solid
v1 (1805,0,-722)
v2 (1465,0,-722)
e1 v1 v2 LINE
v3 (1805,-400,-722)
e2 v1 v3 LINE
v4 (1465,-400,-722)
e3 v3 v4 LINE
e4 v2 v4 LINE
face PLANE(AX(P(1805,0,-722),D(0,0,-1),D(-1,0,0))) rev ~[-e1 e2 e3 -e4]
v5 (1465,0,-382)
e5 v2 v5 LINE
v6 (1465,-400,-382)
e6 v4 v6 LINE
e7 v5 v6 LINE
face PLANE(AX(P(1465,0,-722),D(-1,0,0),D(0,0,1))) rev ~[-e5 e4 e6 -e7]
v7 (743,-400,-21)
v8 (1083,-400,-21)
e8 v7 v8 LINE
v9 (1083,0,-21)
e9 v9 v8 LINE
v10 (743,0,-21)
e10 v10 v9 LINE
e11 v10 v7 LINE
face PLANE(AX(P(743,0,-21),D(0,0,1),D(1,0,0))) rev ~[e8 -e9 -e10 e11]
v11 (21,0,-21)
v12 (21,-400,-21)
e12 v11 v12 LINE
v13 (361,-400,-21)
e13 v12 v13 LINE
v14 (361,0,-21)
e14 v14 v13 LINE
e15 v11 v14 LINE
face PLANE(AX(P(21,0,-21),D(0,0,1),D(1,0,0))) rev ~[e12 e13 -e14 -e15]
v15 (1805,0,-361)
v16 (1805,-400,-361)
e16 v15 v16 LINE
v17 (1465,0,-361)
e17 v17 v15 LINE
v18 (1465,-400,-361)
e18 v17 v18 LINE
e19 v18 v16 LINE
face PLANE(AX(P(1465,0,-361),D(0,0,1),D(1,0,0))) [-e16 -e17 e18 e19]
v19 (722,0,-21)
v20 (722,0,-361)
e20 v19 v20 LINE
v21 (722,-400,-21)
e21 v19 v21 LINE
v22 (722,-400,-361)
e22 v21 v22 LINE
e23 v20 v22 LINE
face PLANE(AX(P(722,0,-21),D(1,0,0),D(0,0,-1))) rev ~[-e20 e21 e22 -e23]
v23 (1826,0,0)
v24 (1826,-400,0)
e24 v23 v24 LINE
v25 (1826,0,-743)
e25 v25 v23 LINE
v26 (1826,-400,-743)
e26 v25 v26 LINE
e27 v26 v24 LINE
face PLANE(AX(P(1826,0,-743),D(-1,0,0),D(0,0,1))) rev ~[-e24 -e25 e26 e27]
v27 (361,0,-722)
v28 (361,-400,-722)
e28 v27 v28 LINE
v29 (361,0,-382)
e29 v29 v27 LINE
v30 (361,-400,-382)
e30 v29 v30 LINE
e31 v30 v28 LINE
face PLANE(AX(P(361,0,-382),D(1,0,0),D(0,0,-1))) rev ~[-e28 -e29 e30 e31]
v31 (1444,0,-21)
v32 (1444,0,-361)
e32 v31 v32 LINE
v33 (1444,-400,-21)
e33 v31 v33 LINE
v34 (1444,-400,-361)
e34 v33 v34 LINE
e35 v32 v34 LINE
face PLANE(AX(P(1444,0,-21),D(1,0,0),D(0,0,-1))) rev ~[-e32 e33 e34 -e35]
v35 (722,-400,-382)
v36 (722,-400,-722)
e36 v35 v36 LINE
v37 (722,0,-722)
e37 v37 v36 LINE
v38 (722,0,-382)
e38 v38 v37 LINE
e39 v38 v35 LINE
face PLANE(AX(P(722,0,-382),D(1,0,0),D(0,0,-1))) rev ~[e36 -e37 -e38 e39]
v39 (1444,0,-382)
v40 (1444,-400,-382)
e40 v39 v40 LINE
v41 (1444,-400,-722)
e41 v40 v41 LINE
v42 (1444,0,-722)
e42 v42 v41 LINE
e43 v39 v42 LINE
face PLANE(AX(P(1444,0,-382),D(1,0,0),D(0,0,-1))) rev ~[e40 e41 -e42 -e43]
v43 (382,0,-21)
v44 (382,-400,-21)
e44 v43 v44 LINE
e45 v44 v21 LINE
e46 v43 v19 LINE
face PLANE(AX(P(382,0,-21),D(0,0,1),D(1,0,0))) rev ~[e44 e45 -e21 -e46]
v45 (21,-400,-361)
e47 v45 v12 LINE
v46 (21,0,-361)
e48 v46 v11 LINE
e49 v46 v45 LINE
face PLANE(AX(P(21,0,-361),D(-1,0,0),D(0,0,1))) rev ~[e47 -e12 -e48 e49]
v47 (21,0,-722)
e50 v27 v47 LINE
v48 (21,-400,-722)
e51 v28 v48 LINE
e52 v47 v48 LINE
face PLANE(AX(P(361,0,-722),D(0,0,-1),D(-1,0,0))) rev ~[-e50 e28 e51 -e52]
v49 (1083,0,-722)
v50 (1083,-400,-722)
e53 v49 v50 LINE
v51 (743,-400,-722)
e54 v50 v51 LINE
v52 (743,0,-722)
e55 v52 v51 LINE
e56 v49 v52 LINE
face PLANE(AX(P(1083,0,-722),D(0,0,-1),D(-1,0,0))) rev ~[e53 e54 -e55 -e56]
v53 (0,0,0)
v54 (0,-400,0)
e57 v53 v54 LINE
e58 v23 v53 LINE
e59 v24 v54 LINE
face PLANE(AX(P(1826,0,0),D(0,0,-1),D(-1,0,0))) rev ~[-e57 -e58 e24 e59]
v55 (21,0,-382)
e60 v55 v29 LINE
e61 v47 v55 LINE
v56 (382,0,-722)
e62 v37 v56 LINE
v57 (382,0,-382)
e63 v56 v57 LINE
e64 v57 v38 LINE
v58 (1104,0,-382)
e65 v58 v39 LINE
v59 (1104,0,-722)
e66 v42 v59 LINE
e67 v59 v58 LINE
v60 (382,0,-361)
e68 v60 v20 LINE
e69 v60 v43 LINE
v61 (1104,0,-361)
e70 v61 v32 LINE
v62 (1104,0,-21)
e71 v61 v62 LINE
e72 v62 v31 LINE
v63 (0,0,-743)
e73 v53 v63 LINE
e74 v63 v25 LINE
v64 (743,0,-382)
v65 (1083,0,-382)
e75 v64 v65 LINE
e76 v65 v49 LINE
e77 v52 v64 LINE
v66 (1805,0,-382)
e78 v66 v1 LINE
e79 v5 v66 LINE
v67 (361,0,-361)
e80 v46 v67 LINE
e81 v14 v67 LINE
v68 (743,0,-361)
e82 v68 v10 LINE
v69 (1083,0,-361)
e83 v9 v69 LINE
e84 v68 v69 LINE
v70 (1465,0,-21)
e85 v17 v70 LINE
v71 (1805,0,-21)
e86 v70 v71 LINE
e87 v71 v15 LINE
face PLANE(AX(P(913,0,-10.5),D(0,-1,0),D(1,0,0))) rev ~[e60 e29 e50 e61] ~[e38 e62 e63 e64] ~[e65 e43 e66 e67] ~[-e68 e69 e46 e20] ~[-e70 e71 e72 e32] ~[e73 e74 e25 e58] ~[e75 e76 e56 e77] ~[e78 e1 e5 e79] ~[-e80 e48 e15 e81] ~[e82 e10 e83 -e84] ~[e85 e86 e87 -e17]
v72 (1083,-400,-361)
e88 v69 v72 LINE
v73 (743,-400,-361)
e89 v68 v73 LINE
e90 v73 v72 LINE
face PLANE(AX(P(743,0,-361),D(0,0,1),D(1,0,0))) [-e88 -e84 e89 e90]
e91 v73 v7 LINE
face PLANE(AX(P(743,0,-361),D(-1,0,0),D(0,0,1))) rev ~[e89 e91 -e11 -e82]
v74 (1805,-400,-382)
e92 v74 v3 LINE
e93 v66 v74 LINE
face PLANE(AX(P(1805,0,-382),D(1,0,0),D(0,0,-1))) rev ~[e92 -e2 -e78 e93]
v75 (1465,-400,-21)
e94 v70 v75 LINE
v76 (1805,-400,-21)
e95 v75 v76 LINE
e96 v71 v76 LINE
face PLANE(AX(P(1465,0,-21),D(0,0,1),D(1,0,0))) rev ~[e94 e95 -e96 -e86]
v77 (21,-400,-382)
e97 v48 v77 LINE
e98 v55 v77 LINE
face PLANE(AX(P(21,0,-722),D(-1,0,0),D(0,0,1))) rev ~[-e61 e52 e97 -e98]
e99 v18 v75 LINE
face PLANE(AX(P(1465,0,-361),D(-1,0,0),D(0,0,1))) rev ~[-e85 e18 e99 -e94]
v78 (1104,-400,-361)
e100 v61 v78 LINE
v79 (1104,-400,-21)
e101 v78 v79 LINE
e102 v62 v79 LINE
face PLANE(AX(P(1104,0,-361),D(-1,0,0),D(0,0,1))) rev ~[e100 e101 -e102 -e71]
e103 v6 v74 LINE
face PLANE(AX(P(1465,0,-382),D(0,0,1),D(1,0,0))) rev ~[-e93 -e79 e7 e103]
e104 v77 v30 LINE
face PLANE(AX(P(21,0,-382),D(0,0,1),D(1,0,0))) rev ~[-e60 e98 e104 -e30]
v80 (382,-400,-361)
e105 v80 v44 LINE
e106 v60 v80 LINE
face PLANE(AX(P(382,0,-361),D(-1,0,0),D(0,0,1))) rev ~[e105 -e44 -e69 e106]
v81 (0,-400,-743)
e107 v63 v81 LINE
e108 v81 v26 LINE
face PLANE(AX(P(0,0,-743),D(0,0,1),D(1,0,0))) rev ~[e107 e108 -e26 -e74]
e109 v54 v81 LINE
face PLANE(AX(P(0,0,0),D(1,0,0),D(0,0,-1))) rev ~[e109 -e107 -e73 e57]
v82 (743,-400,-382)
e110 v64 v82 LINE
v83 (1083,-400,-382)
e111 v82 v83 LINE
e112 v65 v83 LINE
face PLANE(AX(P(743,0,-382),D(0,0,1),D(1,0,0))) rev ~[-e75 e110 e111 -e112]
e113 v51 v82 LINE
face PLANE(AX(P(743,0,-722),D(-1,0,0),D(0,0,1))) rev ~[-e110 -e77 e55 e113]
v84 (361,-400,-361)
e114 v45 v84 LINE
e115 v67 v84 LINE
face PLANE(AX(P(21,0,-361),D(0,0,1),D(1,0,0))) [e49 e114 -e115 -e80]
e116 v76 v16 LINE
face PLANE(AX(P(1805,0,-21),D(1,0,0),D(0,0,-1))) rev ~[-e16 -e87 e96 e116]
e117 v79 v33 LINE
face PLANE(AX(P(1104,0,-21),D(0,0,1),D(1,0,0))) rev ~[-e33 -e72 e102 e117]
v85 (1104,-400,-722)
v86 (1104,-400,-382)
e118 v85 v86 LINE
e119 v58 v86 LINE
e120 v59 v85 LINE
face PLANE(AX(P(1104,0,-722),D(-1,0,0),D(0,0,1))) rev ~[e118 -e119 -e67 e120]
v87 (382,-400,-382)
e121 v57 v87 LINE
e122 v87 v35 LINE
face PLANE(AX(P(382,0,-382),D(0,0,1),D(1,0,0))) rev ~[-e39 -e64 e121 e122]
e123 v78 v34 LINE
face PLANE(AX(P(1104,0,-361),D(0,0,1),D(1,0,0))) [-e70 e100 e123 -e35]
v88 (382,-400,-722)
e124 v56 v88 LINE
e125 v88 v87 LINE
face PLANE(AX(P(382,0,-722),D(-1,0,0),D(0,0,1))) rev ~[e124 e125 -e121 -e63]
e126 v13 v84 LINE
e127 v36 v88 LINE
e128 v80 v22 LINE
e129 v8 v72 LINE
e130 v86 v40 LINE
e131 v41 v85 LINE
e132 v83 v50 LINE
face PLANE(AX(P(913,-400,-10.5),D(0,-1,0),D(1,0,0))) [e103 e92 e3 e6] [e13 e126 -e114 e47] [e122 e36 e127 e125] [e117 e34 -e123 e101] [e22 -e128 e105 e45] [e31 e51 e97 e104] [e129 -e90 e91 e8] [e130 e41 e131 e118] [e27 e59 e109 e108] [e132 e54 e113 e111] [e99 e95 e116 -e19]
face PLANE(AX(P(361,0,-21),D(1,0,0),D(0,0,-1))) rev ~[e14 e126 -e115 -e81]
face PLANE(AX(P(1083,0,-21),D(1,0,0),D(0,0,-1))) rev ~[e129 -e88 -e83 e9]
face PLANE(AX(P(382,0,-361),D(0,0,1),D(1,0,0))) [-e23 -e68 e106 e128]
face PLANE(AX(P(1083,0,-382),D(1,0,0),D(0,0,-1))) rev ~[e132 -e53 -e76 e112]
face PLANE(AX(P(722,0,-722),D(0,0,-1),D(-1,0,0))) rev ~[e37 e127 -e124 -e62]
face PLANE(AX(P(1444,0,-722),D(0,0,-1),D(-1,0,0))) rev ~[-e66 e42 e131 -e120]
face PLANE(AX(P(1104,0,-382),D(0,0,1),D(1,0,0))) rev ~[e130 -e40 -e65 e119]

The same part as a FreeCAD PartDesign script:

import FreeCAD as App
import Part
import Sketcher

doc = App.newDocument("Part")
body = doc.addObject("PartDesign::Body", "Body")

# Sketch on XZ plane
sketch1 = body.newObject("Sketcher::SketchObject", "Sketch")
sketch1.AttachmentSupport = (doc.getObject("XZ_Plane"), [""])
sketch1.MapMode = "FlatFace"
sketch1.addGeometry([
    Part.LineSegment(App.Vector(1826, 0, 0), App.Vector(0, 0, 0)),  # 0
    Part.LineSegment(App.Vector(0, 0, 0), App.Vector(0, -743, 0)),  # 1
    Part.LineSegment(App.Vector(0, -743, 0), App.Vector(1826, -743, 0)),  # 2
    Part.LineSegment(App.Vector(1826, -743, 0), App.Vector(1826, 0, 0)),  # 3
    Part.LineSegment(App.Vector(1805, -722, 0), App.Vector(1465, -722, 0)),  # 4
    Part.LineSegment(App.Vector(1465, -722, 0), App.Vector(1465, -382, 0)),  # 5
    Part.LineSegment(App.Vector(1465, -382, 0), App.Vector(1805, -382, 0)),  # 6
    Part.LineSegment(App.Vector(1805, -382, 0), App.Vector(1805, -722, 0)),  # 7
    Part.LineSegment(App.Vector(1465, -361, 0), App.Vector(1465, -21, 0)),  # 8
    Part.LineSegment(App.Vector(1465, -21, 0), App.Vector(1805, -21, 0)),  # 9
    Part.LineSegment(App.Vector(1805, -21, 0), App.Vector(1805, -361, 0)),  # 10
    Part.LineSegment(App.Vector(1805, -361, 0), App.Vector(1465, -361, 0)),  # 11
    Part.LineSegment(App.Vector(21, -21, 0), App.Vector(361, -21, 0)),  # 12
    Part.LineSegment(App.Vector(361, -21, 0), App.Vector(361, -361, 0)),  # 13
    Part.LineSegment(App.Vector(361, -361, 0), App.Vector(21, -361, 0)),  # 14
    Part.LineSegment(App.Vector(21, -361, 0), App.Vector(21, -21, 0)),  # 15
    Part.LineSegment(App.Vector(361, -382, 0), App.Vector(361, -722, 0)),  # 16
    Part.LineSegment(App.Vector(361, -722, 0), App.Vector(21, -722, 0)),  # 17
    Part.LineSegment(App.Vector(21, -722, 0), App.Vector(21, -382, 0)),  # 18
    Part.LineSegment(App.Vector(21, -382, 0), App.Vector(361, -382, 0)),  # 19
    Part.LineSegment(App.Vector(382, -21, 0), App.Vector(722, -21, 0)),  # 20
    Part.LineSegment(App.Vector(722, -21, 0), App.Vector(722, -361, 0)),  # 21
    Part.LineSegment(App.Vector(722, -361, 0), App.Vector(382, -361, 0)),  # 22
    Part.LineSegment(App.Vector(382, -361, 0), App.Vector(382, -21, 0)),  # 23
    Part.LineSegment(App.Vector(722, -382, 0), App.Vector(722, -722, 0)),  # 24
    Part.LineSegment(App.Vector(722, -722, 0), App.Vector(382, -722, 0)),  # 25
    Part.LineSegment(App.Vector(382, -722, 0), App.Vector(382, -382, 0)),  # 26
    Part.LineSegment(App.Vector(382, -382, 0), App.Vector(722, -382, 0)),  # 27
    Part.LineSegment(App.Vector(743, -21, 0), App.Vector(1083, -21, 0)),  # 28
    Part.LineSegment(App.Vector(1083, -21, 0), App.Vector(1083, -361, 0)),  # 29
    Part.LineSegment(App.Vector(1083, -361, 0), App.Vector(743, -361, 0)),  # 30
    Part.LineSegment(App.Vector(743, -361, 0), App.Vector(743, -21, 0)),  # 31
    Part.LineSegment(App.Vector(1083, -382, 0), App.Vector(1083, -722, 0)),  # 32
    Part.LineSegment(App.Vector(1083, -722, 0), App.Vector(743, -722, 0)),  # 33
    Part.LineSegment(App.Vector(743, -722, 0), App.Vector(743, -382, 0)),  # 34
    Part.LineSegment(App.Vector(743, -382, 0), App.Vector(1083, -382, 0)),  # 35
    Part.LineSegment(App.Vector(1104, -722, 0), App.Vector(1104, -382, 0)),  # 36
    Part.LineSegment(App.Vector(1104, -382, 0), App.Vector(1444, -382, 0)),  # 37
    Part.LineSegment(App.Vector(1444, -382, 0), App.Vector(1444, -722, 0)),  # 38
    Part.LineSegment(App.Vector(1444, -722, 0), App.Vector(1104, -722, 0)),  # 39
    Part.LineSegment(App.Vector(1104, -361, 0), App.Vector(1104, -21, 0)),  # 40
    Part.LineSegment(App.Vector(1104, -21, 0), App.Vector(1444, -21, 0)),  # 41
    Part.LineSegment(App.Vector(1444, -21, 0), App.Vector(1444, -361, 0)),  # 42
    Part.LineSegment(App.Vector(1444, -361, 0), App.Vector(1104, -361, 0)),  # 43
], False)
sketch1.addConstraint([
    Sketcher.Constraint("Coincident", 0, 2, 1, 1),
    Sketcher.Constraint("Coincident", 1, 2, 2, 1),
    Sketcher.Constraint("Coincident", 2, 2, 3, 1),
    Sketcher.Constraint("Coincident", 3, 2, 0, 1),
    Sketcher.Constraint("Coincident", 4, 2, 5, 1),
    Sketcher.Constraint("Coincident", 5, 2, 6, 1),
    Sketcher.Constraint("Coincident", 6, 2, 7, 1),
    Sketcher.Constraint("Coincident", 7, 2, 4, 1),
    Sketcher.Constraint("Coincident", 8, 2, 9, 1),
    Sketcher.Constraint("Coincident", 9, 2, 10, 1),
    Sketcher.Constraint("Coincident", 10, 2, 11, 1),
    Sketcher.Constraint("Coincident", 11, 2, 8, 1),
    Sketcher.Constraint("Coincident", 12, 2, 13, 1),
    Sketcher.Constraint("Coincident", 13, 2, 14, 1),
    Sketcher.Constraint("Coincident", 14, 2, 15, 1),
    Sketcher.Constraint("Coincident", 15, 2, 12, 1),
    Sketcher.Constraint("Coincident", 16, 2, 17, 1),
    Sketcher.Constraint("Coincident", 17, 2, 18, 1),
    Sketcher.Constraint("Coincident", 18, 2, 19, 1),
    Sketcher.Constraint("Coincident", 19, 2, 16, 1),
    Sketcher.Constraint("Coincident", 20, 2, 21, 1),
    Sketcher.Constraint("Coincident", 21, 2, 22, 1),
    Sketcher.Constraint("Coincident", 22, 2, 23, 1),
    Sketcher.Constraint("Coincident", 23, 2, 20, 1),
    Sketcher.Constraint("Coincident", 24, 2, 25, 1),
    Sketcher.Constraint("Coincident", 25, 2, 26, 1),
    Sketcher.Constraint("Coincident", 26, 2, 27, 1),
    Sketcher.Constraint("Coincident", 27, 2, 24, 1),
    Sketcher.Constraint("Coincident", 28, 2, 29, 1),
    Sketcher.Constraint("Coincident", 29, 2, 30, 1),
    Sketcher.Constraint("Coincident", 30, 2, 31, 1),
    Sketcher.Constraint("Coincident", 31, 2, 28, 1),
    Sketcher.Constraint("Coincident", 32, 2, 33, 1),
    Sketcher.Constraint("Coincident", 33, 2, 34, 1),
    Sketcher.Constraint("Coincident", 34, 2, 35, 1),
    Sketcher.Constraint("Coincident", 35, 2, 32, 1),
    Sketcher.Constraint("Coincident", 36, 2, 37, 1),
    Sketcher.Constraint("Coincident", 37, 2, 38, 1),
    Sketcher.Constraint("Coincident", 38, 2, 39, 1),
    Sketcher.Constraint("Coincident", 39, 2, 36, 1),
    Sketcher.Constraint("Coincident", 40, 2, 41, 1),
    Sketcher.Constraint("Coincident", 41, 2, 42, 1),
    Sketcher.Constraint("Coincident", 42, 2, 43, 1),
    Sketcher.Constraint("Coincident", 43, 2, 40, 1),
    Sketcher.Constraint("Horizontal", 0),
    Sketcher.Constraint("Vertical", 1),
    Sketcher.Constraint("Horizontal", 2),
    Sketcher.Constraint("Vertical", 3),
    Sketcher.Constraint("Horizontal", 4),
    Sketcher.Constraint("Vertical", 5),
    Sketcher.Constraint("Horizontal", 6),
    Sketcher.Constraint("Vertical", 7),
    Sketcher.Constraint("Vertical", 8),
    Sketcher.Constraint("Horizontal", 9),
    Sketcher.Constraint("Vertical", 10),
    Sketcher.Constraint("Horizontal", 11),
    Sketcher.Constraint("Horizontal", 12),
    Sketcher.Constraint("Vertical", 13),
    Sketcher.Constraint("Horizontal", 14),
    Sketcher.Constraint("Vertical", 15),
    Sketcher.Constraint("Vertical", 16),
    Sketcher.Constraint("Horizontal", 17),
    Sketcher.Constraint("Vertical", 18),
    Sketcher.Constraint("Horizontal", 19),
    Sketcher.Constraint("Horizontal", 20),
    Sketcher.Constraint("Vertical", 21),
    Sketcher.Constraint("Horizontal", 22),
    Sketcher.Constraint("Vertical", 23),
    Sketcher.Constraint("Vertical", 24),
    Sketcher.Constraint("Horizontal", 25),
    Sketcher.Constraint("Vertical", 26),
    Sketcher.Constraint("Horizontal", 27),
    Sketcher.Constraint("Horizontal", 28),
    Sketcher.Constraint("Vertical", 29),
    Sketcher.Constraint("Horizontal", 30),
    Sketcher.Constraint("Vertical", 31),
    Sketcher.Constraint("Vertical", 32),
    Sketcher.Constraint("Horizontal", 33),
    Sketcher.Constraint("Vertical", 34),
    Sketcher.Constraint("Horizontal", 35),
    Sketcher.Constraint("Vertical", 36),
    Sketcher.Constraint("Horizontal", 37),
    Sketcher.Constraint("Vertical", 38),
    Sketcher.Constraint("Horizontal", 39),
    Sketcher.Constraint("Vertical", 40),
    Sketcher.Constraint("Horizontal", 41),
    Sketcher.Constraint("Vertical", 42),
    Sketcher.Constraint("Horizontal", 43),
    Sketcher.Constraint("Coincident", 0, 2, -1, 1),
    Sketcher.Constraint("Horizontal", 9, 2, 12, 2),
    Sketcher.Constraint("Horizontal", 11, 2, 13, 2),
    Sketcher.Constraint("Horizontal", 7, 2, 16, 2),
    Sketcher.Constraint("Horizontal", 6, 2, 18, 2),
    Sketcher.Constraint("Horizontal", 15, 2, 20, 2),
    Sketcher.Constraint("Horizontal", 14, 2, 21, 2),
    Sketcher.Constraint("Horizontal", 17, 2, 24, 2),
    Sketcher.Constraint("Horizontal", 19, 2, 26, 2),
    Sketcher.Constraint("Horizontal", 23, 2, 28, 2),
    Sketcher.Constraint("Horizontal", 22, 2, 29, 2),
    Sketcher.Constraint("Horizontal", 25, 2, 32, 2),
    Sketcher.Constraint("Horizontal", 27, 2, 34, 2),
    Sketcher.Constraint("Horizontal", 35, 2, 36, 2),
    Sketcher.Constraint("Horizontal", 33, 2, 38, 2),
    Sketcher.Constraint("Horizontal", 31, 2, 40, 2),
    Sketcher.Constraint("Horizontal", 30, 2, 42, 2),
    Sketcher.Constraint("Vertical", 5, 2, 8, 2),
    Sketcher.Constraint("Vertical", 7, 2, 9, 2),
    Sketcher.Constraint("Vertical", 13, 2, 16, 2),
    Sketcher.Constraint("Vertical", 15, 2, 17, 2),
    Sketcher.Constraint("Vertical", 21, 2, 24, 2),
    Sketcher.Constraint("Vertical", 23, 2, 25, 2),
    Sketcher.Constraint("Vertical", 29, 2, 32, 2),
    Sketcher.Constraint("Vertical", 31, 2, 33, 2),
    Sketcher.Constraint("Vertical", 39, 2, 40, 2),
    Sketcher.Constraint("Vertical", 38, 2, 41, 2),
    Sketcher.Constraint("Equal", 11, 12),
    Sketcher.Constraint("Equal", 19, 20),
    Sketcher.Constraint("Equal", 27, 28),
    Sketcher.Constraint("Equal", 35, 37),
    Sketcher.Constraint("Equal", 43, 5),
    Sketcher.Constraint("Equal", 7, 8),
    Sketcher.Constraint("DistanceX", 0, 2, 0, 1, 1826.0),
    Sketcher.Constraint("DistanceX", 4, 2, 4, 1, 340.0),
    Sketcher.Constraint("DistanceY", 1, 2, 1, 1, 743.0),
    Sketcher.Constraint("DistanceX", -1, 1, 4, 2, 1465.0),
    Sketcher.Constraint("DistanceY", 4, 2, -1, 1, 722.0),
    Sketcher.Constraint("DistanceY", 8, 2, -1, 1, 21.0),
    Sketcher.Constraint("DistanceX", -1, 1, 12, 2, 361.0),
    Sketcher.Constraint("DistanceX", -1, 1, 20, 2, 722.0),
    Sketcher.Constraint("DistanceX", -1, 1, 28, 2, 1083.0),
    Sketcher.Constraint("DistanceX", -1, 1, 36, 2, 1104.0),
])
pad1 = body.newObject("PartDesign::Pad", "Pad")
pad1.Profile = sketch1
pad1.Length = 400

doc.recompute()
